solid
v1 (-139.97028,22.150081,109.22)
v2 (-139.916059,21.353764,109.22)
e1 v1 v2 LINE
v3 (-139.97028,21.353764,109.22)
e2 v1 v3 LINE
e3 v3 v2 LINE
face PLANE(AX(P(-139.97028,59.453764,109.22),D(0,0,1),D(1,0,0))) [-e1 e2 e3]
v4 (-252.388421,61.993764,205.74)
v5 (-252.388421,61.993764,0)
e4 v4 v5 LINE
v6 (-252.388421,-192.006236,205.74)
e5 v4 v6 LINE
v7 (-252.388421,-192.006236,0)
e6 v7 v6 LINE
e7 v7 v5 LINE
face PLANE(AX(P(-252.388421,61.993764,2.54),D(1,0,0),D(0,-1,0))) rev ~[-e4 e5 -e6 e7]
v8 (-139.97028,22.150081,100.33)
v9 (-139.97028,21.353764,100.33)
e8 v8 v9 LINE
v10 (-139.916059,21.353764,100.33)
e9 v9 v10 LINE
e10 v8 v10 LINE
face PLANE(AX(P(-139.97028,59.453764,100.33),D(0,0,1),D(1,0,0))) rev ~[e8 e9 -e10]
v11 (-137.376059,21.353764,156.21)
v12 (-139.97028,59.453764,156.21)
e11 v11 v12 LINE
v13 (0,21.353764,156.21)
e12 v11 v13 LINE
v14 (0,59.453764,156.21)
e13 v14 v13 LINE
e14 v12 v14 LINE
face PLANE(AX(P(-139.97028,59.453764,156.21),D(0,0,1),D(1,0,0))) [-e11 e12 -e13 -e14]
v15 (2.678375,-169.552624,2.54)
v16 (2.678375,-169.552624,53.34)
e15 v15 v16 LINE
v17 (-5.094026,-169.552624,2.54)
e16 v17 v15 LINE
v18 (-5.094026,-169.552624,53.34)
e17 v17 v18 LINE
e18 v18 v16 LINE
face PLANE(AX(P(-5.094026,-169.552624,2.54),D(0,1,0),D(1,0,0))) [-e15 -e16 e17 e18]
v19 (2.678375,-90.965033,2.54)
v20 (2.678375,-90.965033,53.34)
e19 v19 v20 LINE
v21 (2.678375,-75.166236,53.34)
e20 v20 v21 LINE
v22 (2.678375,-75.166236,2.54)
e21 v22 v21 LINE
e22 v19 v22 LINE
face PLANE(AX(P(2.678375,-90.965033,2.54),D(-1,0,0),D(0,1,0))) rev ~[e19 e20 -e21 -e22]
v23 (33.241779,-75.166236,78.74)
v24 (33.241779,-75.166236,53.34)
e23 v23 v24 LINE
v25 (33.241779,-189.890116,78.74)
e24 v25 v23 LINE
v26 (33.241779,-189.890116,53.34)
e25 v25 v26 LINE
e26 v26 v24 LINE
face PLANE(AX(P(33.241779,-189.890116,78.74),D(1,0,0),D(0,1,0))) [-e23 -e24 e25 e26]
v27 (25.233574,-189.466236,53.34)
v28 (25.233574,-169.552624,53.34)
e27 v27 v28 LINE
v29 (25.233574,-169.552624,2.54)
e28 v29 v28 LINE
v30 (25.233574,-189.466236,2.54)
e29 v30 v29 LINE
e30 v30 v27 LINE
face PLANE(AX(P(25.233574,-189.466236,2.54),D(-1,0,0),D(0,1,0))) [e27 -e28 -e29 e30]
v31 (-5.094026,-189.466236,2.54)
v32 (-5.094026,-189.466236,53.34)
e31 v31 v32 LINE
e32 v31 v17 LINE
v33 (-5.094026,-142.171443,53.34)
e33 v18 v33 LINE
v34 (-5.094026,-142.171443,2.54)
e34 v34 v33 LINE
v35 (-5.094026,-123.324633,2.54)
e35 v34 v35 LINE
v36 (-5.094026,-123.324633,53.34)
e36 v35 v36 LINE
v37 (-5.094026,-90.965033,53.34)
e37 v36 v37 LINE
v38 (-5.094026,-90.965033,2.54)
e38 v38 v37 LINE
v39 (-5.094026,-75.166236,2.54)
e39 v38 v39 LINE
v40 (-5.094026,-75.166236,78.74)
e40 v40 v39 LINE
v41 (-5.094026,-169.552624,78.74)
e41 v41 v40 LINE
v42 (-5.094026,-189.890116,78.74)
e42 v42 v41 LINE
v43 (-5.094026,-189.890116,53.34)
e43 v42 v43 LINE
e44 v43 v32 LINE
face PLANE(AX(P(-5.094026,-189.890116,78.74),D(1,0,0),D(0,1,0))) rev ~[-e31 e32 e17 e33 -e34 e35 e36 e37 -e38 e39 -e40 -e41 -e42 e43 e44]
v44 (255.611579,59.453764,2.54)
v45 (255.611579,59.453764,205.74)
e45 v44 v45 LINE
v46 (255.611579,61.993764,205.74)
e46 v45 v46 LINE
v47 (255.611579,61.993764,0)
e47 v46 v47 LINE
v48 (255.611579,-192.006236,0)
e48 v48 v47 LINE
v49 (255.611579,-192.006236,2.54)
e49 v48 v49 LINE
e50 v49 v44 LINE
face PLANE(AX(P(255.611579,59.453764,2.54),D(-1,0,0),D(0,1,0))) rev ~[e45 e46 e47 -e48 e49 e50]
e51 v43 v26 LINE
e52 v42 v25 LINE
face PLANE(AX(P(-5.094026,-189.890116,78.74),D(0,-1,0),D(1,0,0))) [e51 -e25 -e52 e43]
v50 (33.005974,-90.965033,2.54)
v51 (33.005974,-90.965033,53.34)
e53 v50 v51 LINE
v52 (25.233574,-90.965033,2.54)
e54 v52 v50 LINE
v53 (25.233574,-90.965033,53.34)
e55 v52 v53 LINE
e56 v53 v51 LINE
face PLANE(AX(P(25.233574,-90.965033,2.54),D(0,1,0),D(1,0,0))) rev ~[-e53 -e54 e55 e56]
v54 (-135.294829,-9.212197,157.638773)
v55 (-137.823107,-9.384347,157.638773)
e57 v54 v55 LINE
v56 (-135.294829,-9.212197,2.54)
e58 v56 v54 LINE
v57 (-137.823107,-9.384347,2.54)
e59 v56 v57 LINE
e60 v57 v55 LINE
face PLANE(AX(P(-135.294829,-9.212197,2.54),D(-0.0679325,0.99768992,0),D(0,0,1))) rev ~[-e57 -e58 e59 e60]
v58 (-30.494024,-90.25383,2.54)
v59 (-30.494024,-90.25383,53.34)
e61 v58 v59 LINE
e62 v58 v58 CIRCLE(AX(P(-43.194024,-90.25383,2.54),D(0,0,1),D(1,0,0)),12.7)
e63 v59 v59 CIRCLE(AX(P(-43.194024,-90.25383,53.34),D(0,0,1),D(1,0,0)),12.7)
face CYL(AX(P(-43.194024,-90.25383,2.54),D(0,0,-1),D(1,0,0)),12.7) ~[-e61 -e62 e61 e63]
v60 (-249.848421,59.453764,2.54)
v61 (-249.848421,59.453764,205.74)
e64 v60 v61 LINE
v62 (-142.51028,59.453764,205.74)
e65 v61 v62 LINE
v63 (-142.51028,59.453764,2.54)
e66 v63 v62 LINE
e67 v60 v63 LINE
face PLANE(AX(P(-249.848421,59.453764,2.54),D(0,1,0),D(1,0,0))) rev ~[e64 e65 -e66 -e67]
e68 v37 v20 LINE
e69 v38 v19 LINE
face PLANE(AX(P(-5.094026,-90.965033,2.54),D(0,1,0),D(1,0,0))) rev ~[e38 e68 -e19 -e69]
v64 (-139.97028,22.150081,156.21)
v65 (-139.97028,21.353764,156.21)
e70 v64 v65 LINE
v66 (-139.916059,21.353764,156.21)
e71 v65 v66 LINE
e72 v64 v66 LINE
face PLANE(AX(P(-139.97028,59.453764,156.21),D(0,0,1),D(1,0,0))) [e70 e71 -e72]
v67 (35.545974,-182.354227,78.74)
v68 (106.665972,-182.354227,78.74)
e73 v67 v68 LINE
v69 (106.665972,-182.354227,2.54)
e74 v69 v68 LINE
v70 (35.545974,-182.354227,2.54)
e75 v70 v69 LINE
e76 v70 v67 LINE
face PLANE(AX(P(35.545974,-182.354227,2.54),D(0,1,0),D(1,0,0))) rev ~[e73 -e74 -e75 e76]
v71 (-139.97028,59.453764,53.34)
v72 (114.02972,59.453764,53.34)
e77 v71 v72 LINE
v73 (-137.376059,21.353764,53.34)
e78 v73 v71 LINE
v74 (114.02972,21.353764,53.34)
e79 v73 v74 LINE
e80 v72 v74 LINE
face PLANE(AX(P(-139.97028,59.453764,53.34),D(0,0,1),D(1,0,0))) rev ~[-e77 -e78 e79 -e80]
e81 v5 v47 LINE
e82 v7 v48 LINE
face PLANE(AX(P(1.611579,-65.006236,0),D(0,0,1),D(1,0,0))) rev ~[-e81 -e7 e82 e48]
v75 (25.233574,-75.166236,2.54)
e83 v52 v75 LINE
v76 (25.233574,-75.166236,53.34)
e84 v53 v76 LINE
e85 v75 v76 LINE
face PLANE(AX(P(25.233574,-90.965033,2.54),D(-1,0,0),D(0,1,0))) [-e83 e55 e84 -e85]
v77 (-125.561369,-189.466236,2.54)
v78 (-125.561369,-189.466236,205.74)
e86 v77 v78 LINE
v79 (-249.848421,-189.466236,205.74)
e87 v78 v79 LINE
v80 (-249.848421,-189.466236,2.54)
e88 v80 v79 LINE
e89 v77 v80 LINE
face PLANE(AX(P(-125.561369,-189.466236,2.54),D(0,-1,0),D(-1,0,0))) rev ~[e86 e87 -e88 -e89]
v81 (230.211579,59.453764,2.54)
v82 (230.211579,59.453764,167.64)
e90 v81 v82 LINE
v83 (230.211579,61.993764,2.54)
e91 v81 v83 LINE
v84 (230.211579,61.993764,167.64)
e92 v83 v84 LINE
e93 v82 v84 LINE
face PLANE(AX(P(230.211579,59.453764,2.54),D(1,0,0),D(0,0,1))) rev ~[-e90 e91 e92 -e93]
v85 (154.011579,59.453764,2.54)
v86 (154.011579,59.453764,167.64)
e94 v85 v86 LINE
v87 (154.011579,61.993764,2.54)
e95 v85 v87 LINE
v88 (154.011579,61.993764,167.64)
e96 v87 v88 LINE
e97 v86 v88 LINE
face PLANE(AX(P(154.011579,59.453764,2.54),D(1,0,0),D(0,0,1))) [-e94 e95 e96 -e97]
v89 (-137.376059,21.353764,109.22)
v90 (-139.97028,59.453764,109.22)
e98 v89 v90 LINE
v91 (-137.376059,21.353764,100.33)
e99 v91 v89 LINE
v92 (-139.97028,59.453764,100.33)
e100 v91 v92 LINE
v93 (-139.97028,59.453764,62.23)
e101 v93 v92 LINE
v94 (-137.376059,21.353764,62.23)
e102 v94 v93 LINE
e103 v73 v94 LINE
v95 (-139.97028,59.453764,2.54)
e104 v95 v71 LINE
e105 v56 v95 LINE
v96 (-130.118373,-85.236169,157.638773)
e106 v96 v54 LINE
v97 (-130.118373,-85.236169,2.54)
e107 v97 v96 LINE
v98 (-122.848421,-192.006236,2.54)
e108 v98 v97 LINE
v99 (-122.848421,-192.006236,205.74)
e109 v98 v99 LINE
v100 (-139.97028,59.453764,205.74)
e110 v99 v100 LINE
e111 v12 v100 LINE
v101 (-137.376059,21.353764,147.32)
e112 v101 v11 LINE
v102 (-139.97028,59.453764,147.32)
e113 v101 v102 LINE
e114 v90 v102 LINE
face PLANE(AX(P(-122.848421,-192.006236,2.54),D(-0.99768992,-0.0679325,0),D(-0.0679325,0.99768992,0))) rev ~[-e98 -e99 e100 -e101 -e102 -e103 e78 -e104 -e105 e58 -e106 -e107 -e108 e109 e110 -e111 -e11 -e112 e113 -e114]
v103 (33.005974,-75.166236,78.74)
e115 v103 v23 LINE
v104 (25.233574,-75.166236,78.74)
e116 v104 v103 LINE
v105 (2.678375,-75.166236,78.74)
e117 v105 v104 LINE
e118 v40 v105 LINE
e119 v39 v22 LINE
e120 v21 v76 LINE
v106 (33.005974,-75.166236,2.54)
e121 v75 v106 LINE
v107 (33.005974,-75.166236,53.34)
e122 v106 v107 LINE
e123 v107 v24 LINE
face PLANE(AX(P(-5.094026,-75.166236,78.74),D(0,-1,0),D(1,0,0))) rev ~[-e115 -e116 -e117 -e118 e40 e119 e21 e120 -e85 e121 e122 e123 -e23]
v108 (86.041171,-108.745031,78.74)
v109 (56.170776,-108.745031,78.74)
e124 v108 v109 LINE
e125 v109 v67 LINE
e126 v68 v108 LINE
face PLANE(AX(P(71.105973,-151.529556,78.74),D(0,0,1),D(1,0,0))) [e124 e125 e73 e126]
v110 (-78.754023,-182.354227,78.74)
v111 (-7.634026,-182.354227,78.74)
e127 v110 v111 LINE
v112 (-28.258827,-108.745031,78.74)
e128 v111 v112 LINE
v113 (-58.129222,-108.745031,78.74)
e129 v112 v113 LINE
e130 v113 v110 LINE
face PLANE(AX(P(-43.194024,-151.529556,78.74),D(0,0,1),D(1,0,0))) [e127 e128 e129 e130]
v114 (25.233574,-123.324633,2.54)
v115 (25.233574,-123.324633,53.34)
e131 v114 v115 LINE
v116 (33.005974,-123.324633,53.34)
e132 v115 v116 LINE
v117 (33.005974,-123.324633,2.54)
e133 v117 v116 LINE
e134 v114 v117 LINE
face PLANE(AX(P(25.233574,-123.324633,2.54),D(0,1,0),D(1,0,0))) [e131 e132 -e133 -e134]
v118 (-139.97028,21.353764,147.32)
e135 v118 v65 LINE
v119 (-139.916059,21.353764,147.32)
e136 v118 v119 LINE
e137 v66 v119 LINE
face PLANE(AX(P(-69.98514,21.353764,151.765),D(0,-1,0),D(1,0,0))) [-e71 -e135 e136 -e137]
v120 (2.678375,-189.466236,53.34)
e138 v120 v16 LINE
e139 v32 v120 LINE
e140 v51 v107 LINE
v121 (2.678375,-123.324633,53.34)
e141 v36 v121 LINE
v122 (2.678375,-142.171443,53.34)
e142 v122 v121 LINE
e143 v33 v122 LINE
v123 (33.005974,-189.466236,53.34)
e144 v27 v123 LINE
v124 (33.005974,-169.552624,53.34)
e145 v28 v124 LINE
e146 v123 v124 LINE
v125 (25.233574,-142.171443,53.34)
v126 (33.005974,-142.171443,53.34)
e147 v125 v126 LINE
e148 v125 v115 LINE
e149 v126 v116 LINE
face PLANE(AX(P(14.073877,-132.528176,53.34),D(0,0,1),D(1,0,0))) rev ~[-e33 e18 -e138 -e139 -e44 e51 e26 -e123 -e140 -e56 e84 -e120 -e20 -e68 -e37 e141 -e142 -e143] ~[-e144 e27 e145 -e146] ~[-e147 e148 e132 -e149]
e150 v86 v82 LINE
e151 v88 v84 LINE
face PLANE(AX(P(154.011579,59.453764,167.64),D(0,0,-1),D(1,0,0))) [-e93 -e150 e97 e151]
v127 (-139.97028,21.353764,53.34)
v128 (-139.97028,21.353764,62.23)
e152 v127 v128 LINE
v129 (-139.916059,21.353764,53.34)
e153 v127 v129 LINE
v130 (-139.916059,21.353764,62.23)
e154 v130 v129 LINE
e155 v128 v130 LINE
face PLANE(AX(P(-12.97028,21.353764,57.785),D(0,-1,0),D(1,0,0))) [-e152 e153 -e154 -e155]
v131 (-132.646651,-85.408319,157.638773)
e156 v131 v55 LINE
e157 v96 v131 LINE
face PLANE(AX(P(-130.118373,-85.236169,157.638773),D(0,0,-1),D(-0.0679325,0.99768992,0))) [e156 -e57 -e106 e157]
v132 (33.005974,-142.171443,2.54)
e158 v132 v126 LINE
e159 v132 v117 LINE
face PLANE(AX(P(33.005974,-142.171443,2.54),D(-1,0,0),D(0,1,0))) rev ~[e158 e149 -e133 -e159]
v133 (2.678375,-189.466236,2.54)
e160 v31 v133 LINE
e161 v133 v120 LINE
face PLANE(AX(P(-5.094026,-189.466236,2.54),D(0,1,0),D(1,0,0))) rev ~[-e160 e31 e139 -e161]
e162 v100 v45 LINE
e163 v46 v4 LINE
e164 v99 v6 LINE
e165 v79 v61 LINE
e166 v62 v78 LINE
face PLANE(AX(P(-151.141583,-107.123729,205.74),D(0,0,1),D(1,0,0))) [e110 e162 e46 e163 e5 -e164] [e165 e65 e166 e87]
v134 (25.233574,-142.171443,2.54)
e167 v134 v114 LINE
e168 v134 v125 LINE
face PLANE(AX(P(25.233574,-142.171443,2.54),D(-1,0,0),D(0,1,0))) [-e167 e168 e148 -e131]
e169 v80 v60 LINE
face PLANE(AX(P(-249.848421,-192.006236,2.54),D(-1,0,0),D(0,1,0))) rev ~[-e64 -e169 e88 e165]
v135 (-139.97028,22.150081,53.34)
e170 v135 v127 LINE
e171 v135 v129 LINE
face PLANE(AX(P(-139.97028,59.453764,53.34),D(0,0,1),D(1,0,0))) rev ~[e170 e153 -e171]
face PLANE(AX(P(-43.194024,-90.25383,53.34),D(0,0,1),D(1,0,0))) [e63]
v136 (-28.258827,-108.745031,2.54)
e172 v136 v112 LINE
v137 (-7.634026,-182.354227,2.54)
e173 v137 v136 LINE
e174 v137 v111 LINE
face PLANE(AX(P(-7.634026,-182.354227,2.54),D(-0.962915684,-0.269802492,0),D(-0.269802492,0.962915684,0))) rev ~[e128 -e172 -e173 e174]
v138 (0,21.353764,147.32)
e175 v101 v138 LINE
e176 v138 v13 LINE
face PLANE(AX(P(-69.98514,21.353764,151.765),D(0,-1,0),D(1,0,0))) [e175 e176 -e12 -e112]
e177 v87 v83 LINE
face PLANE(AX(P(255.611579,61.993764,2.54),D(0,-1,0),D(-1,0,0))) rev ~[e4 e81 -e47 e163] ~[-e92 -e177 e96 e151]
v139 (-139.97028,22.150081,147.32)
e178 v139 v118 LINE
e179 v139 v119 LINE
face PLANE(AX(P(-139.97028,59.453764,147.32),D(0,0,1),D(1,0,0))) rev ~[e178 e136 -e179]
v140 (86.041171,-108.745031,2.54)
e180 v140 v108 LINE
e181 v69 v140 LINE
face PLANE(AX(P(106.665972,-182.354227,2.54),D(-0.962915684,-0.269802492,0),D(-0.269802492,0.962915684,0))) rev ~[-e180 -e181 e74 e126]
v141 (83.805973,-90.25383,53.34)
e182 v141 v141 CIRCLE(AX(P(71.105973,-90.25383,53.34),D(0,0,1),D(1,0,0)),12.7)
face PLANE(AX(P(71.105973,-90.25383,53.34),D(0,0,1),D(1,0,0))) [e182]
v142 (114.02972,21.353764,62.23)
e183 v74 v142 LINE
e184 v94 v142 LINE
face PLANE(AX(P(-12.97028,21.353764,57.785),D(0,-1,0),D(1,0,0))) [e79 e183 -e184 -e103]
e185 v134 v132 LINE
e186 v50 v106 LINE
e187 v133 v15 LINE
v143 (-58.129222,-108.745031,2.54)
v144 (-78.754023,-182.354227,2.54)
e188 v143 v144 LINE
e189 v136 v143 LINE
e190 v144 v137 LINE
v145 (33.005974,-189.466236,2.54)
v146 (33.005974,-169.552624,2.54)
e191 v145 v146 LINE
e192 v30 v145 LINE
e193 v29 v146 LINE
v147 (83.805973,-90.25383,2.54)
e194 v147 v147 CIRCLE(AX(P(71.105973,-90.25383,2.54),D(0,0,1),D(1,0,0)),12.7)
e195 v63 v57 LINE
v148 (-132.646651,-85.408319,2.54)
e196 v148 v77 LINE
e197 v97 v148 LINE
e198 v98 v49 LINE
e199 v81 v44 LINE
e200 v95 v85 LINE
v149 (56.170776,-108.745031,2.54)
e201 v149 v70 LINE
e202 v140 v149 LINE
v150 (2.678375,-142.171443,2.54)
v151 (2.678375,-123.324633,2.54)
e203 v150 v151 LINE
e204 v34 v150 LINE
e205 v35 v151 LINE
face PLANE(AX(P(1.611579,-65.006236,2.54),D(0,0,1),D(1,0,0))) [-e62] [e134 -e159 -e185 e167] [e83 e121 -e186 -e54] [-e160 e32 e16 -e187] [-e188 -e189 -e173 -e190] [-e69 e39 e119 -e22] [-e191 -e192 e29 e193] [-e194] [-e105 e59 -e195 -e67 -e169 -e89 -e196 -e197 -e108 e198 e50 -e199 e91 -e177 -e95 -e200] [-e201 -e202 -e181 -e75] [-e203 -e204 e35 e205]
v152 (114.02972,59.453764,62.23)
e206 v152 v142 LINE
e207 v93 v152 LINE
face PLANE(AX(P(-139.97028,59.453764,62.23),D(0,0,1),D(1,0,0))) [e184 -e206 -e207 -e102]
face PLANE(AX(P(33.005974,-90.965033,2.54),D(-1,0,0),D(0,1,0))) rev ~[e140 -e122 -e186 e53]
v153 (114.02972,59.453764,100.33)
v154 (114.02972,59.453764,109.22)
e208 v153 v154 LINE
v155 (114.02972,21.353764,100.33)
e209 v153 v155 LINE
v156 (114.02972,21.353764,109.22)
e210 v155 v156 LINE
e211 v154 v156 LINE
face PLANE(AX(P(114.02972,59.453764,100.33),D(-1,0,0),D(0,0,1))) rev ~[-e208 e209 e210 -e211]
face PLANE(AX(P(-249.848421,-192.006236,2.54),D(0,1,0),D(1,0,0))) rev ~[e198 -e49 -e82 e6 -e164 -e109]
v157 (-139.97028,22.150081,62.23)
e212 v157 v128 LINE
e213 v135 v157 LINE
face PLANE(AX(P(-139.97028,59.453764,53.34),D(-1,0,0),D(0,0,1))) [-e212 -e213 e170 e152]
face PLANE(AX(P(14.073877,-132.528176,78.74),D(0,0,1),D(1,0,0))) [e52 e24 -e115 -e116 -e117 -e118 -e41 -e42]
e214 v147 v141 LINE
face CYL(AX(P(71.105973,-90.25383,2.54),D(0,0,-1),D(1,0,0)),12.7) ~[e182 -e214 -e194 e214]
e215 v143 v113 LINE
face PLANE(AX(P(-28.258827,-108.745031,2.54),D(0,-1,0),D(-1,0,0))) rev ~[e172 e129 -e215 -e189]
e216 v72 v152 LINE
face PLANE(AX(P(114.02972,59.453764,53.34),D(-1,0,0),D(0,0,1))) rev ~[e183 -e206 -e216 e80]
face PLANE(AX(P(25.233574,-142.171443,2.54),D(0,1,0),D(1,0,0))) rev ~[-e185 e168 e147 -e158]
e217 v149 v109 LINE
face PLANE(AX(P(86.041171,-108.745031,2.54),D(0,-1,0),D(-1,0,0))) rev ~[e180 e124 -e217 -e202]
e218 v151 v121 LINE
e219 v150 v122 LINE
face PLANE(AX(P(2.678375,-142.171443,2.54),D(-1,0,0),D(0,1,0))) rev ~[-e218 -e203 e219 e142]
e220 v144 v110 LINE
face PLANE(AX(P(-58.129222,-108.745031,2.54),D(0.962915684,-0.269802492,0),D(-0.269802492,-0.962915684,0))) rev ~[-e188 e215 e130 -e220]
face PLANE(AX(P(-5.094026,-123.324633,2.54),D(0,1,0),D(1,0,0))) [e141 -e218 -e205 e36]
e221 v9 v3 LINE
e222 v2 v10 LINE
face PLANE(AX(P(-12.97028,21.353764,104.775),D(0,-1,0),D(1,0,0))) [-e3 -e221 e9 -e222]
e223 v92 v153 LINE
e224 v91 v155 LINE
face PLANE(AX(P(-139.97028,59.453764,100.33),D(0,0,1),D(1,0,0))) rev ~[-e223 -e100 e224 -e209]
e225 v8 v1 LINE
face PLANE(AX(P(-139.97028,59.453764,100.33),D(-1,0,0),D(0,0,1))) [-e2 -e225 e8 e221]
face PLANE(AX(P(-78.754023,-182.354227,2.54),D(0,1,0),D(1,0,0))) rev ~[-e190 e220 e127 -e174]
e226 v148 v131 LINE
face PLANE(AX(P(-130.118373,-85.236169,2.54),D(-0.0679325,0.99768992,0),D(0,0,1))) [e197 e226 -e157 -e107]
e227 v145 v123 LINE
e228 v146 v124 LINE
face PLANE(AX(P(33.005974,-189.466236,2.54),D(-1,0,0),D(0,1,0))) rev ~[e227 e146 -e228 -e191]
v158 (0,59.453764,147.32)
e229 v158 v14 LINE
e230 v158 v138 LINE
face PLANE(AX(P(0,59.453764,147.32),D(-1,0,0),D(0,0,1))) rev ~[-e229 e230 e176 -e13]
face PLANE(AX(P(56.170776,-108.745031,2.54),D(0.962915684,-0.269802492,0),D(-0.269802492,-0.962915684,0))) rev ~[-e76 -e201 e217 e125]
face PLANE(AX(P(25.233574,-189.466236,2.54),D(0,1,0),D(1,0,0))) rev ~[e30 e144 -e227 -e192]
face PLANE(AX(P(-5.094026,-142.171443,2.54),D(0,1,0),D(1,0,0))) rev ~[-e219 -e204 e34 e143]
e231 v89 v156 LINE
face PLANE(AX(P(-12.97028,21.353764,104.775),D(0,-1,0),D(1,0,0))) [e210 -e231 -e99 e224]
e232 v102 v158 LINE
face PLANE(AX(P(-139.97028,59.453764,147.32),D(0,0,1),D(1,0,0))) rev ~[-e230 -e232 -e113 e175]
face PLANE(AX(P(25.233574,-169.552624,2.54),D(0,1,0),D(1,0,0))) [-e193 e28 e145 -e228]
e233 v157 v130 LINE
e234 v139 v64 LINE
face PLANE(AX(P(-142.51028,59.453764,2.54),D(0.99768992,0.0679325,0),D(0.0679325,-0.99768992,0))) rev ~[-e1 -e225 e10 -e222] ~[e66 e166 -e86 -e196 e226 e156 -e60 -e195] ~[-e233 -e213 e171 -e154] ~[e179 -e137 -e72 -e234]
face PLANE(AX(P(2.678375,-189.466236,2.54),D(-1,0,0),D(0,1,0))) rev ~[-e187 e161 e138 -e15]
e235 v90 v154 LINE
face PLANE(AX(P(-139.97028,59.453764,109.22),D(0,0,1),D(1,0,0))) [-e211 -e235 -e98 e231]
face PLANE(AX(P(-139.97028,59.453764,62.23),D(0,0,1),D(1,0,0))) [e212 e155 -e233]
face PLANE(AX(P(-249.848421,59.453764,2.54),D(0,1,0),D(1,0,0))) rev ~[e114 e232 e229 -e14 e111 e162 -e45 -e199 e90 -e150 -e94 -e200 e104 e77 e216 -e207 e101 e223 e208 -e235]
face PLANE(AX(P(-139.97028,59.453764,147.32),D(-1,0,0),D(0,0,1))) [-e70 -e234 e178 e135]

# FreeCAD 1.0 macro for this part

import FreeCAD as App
import Part
import Sketcher
from FreeCAD import Vector
Q = App.Units.Quantity

doc = App.newDocument("Part")
body = doc.addObject("PartDesign::Body", "Body")

# Sketch on XY plane
sketch1 = body.newObject("Sketcher::SketchObject", "Sketch")
sketch1.AttachmentSupport = (doc.getObject("XY_Plane"), [""])
sketch1.MapMode = "FlatFace"
sketch1.addGeometry(Part.LineSegment(Vector(-252, 62, 0), Vector(-252, -192, 0)), False)
sketch1.addGeometry(Part.LineSegment(Vector(-252, -192, 0), Vector(256, -192, 0)), False)
sketch1.addGeometry(Part.LineSegment(Vector(256, -192, 0), Vector(256, 62, 0)), False)
sketch1.addGeometry(Part.LineSegment(Vector(256, 62, 0), Vector(-252, 62, 0)), False)
sketch1.addConstraint(Sketcher.Constraint("Coincident", 0, 2, 1, 1))
sketch1.addConstraint(Sketcher.Constraint("Coincident", 1, 2, 2, 1))
sketch1.addConstraint(Sketcher.Constraint("Coincident", 2, 2, 3, 1))
sketch1.addConstraint(Sketcher.Constraint("Coincident", 3, 2, 0, 1))
sketch1.addConstraint(Sketcher.Constraint("Vertical", 0))
sketch1.addConstraint(Sketcher.Constraint("Horizontal", 1))
sketch1.addConstraint(Sketcher.Constraint("Vertical", 2))
sketch1.addConstraint(Sketcher.Constraint("Horizontal", 3))
sketch1.addConstraint(Sketcher.Constraint("DistanceX", 1, 1, 1, 2, Q("20 in")))
sketch1.addConstraint(Sketcher.Constraint("DistanceY", 0, 2, 0, 1, Q("10 in")))
sketch1.addConstraint(Sketcher.Constraint("DistanceX", 0, 2, -1, 1, 252.388421))
sketch1.addConstraint(Sketcher.Constraint("DistanceY", 0, 2, -1, 1, 192.006236))
pad1 = body.newObject("PartDesign::Pad", "Pad")
pad1.Profile = sketch1
pad1.Length = Q("0.1 in")

# Sketch on XY plane
sketch2 = body.newObject("Sketcher::SketchObject", "Sketch001")
sketch2.AttachmentSupport = (doc.getObject("XY_Plane"), [""])
sketch2.MapMode = "FlatFace"
sketch2.AttachmentOffset = App.Placement(Vector(0, 0, 0.1 * 25.4), App.Rotation())
sketch2.addGeometry(Part.LineSegment(Vector(-252.4, 62, 0), Vector(-252.4, -192, 0)), False)
sketch2.addGeometry(Part.LineSegment(Vector(-252.4, -192, 0), Vector(-249.8, -192, 0)), False)
sketch2.addGeometry(Part.LineSegment(Vector(-249.8, -192, 0), Vector(-249.8, 59.5, 0)), False)
sketch2.addGeometry(Part.LineSegment(Vector(-249.8, 59.5, 0), Vector(255.6, 59.5, 0)), False)
sketch2.addGeometry(Part.LineSegment(Vector(255.6, 59.5, 0), Vector(255.6, 62, 0)), False)
sketch2.addGeometry(Part.LineSegment(Vector(255.6, 62, 0), Vector(-252.4, 62, 0)), False)
sketch2.addConstraint(Sketcher.Constraint("Coincident", 0, 2, 1, 1))
sketch2.addConstraint(Sketcher.Constraint("Coincident", 1, 2, 2, 1))
sketch2.addConstraint(Sketcher.Constraint("Coincident", 2, 2, 3, 1))
sketch2.addConstraint(Sketcher.Constraint("Coincident", 3, 2, 4, 1))
sketch2.addConstraint(Sketcher.Constraint("Coincident", 4, 2, 5, 1))
sketch2.addConstraint(Sketcher.Constraint("Coincident", 5, 2, 0, 1))
sketch2.addConstraint(Sketcher.Constraint("Vertical", 0))
sketch2.addConstraint(Sketcher.Constraint("Horizontal", 1))
sketch2.addConstraint(Sketcher.Constraint("Vertical", 2))
sketch2.addConstraint(Sketcher.Constraint("Horizontal", 3))
sketch2.addConstraint(Sketcher.Constraint("Vertical", 4))
sketch2.addConstraint(Sketcher.Constraint("Horizontal", 5))
sketch2.addConstraint(Sketcher.Constraint("Equal", 1, 4))
sketch2.addConstraint(Sketcher.Constraint("DistanceX", 5, 2, 5, 1, Q("20 in")))
sketch2.addConstraint(Sketcher.Constraint("DistanceY", 0, 2, 0, 1, Q("10 in")))
sketch2.addConstraint(Sketcher.Constraint("DistanceX", 1, 1, 1, 2, Q("0.1 in")))
sketch2.addConstraint(Sketcher.Constraint("DistanceX", 0, 2, -1, 1, 252.388421))
sketch2.addConstraint(Sketcher.Constraint("DistanceY", 0, 2, -1, 1, 192.006236))
pad2 = body.newObject("PartDesign::Pad", "Pad001")
pad2.Profile = sketch2
pad2.Length = Q("8 in")

# Sketch on XY plane
sketch3 = body.newObject("Sketcher::SketchObject", "Sketch002")
sketch3.AttachmentSupport = (doc.getObject("XY_Plane"), [""])
sketch3.MapMode = "FlatFace"
sketch3.AttachmentOffset = App.Placement(Vector(0, 0, 0.1 * 25.4), App.Rotation())
sketch3.addGeometry(Part.LineSegment(Vector(-249.8, -189.5, 0), Vector(-249.8, -192, 0)), False)
sketch3.addGeometry(Part.LineSegment(Vector(-249.8, -192, 0), Vector(-122.8, -192, 0)), False)
sketch3.addGeometry(Part.LineSegment(Vector(-122.8, -192, 0), Vector(-140, 59.5, 0)), False)
sketch3.addGeometry(Part.LineSegment(Vector(-140, 59.5, 0), Vector(-142.5, 59.5, 0)), False)
sketch3.addGeometry(Part.LineSegment(Vector(-142.5, 59.5, 0), Vector(-125.6, -189.5, 0)), False)
sketch3.addGeometry(Part.LineSegment(Vector(-125.6, -189.5, 0), Vector(-249.8, -189.5, 0)), False)
sketch3.addConstraint(Sketcher.Constraint("Coincident", 0, 2, 1, 1))
sketch3.addConstraint(Sketcher.Constraint("Coincident", 1, 2, 2, 1))
sketch3.addConstraint(Sketcher.Constraint("Coincident", 2, 2, 3, 1))
sketch3.addConstraint(Sketcher.Constraint("Coincident", 3, 2, 4, 1))
sketch3.addConstraint(Sketcher.Constraint("Coincident", 4, 2, 5, 1))
sketch3.addConstraint(Sketcher.Constraint("Coincident", 5, 2, 0, 1))
sketch3.addConstraint(Sketcher.Constraint("Vertical", 0))
sketch3.addConstraint(Sketcher.Constraint("Horizontal", 1))
sketch3.addConstraint(Sketcher.Constraint("Horizontal", 3))
sketch3.addConstraint(Sketcher.Constraint("Horizontal", 5))
sketch3.addConstraint(Sketcher.Constraint("Parallel", 2, 4))
sketch3.addConstraint(Sketcher.Constraint("Equal", 3, 0))
sketch3.addConstraint(Sketcher.Constraint("DistanceX", 1, 1, 1, 2, Q("5 in")))
sketch3.addConstraint(Sketcher.Constraint("DistanceX", 3, 2, 3, 1, Q("0.1 in")))
sketch3.addConstraint(Sketcher.Constraint("DistanceY", 1, 2, 2, 2, Q("9.9 in")))
sketch3.addConstraint(Sketcher.Constraint("DistanceX", 5, 2, 5, 1, 124.287052))
sketch3.addConstraint(Sketcher.Constraint("DistanceX", 0, 2, -1, 1, 249.848421))
sketch3.addConstraint(Sketcher.Constraint("DistanceY", 0, 2, -1, 1, 192.006236))
pad3 = body.newObject("PartDesign::Pad", "Pad002")
pad3.Profile = sketch3
pad3.Length = Q("8 in")

# Sketch on an angled plane
sketch4 = body.newObject("Sketcher::SketchObject", "Sketch003")
sketch4.Placement = App.Placement(Vector(-135.294829, -9.212197, 0), App.Rotation(Vector(-0.0679325, 0.99768992, 0), Vector(0, 0, 1.000000001), Vector(0.99768992, 0.0679325, 0), "ZXY"))
sketch4.addGeometry(Part.LineSegment(Vector(-76, 158, 0), Vector(-76, 3, 0)), False)
sketch4.addGeometry(Part.LineSegment(Vector(-76, 3, 0), Vector(0, 3, 0)), False)
sketch4.addGeometry(Part.LineSegment(Vector(0, 3, 0), Vector(0, 158, 0)), False)
sketch4.addGeometry(Part.LineSegment(Vector(0, 158, 0), Vector(-76, 158, 0)), False)
sketch4.addConstraint(Sketcher.Constraint("Coincident", 0, 2, 1, 1))
sketch4.addConstraint(Sketcher.Constraint("Coincident", 1, 2, 2, 1))
sketch4.addConstraint(Sketcher.Constraint("Coincident", 2, 2, 3, 1))
sketch4.addConstraint(Sketcher.Constraint("Coincident", 3, 2, 0, 1))
sketch4.addConstraint(Sketcher.Constraint("Vertical", 0))
sketch4.addConstraint(Sketcher.Constraint("Horizontal", 1))
sketch4.addConstraint(Sketcher.Constraint("Vertical", 2))
sketch4.addConstraint(Sketcher.Constraint("Horizontal", 3))
sketch4.addConstraint(Sketcher.Constraint("PointOnObject", 1, 2, -2))
sketch4.addConstraint(Sketcher.Constraint("DistanceX", 1, 1, 1, 2, Q("3 in")))
sketch4.addConstraint(Sketcher.Constraint("DistanceY", -1, 1, 0, 2, Q("0.1 in")))
sketch4.addConstraint(Sketcher.Constraint("DistanceY", 0, 2, 0, 1, 155.098774))
pocket1 = body.newObject("PartDesign::Pocket", "Pocket")
pocket1.Profile = sketch4
pocket1.Length = Q("1 in")

# Sketch on XY plane
sketch5 = body.newObject("Sketcher::SketchObject", "Sketch004")
sketch5.AttachmentSupport = (doc.getObject("XY_Plane"), [""])
sketch5.MapMode = "FlatFace"
sketch5.AttachmentOffset = App.Placement(Vector(0, 0, 0.1 * 25.4), App.Rotation())
sketch5.addGeometry(Part.LineSegment(Vector(-79, -182, 0), Vector(-8, -182, 0)), False)
sketch5.addGeometry(Part.LineSegment(Vector(-8, -182, 0), Vector(-28, -109, 0)), False)
sketch5.addGeometry(Part.LineSegment(Vector(-28, -109, 0), Vector(-58, -109, 0)), False)
sketch5.addGeometry(Part.LineSegment(Vector(-58, -109, 0), Vector(-79, -182, 0)), False)
sketch5.addConstraint(Sketcher.Constraint("Coincident", 0, 2, 1, 1))
sketch5.addConstraint(Sketcher.Constraint("Coincident", 1, 2, 2, 1))
sketch5.addConstraint(Sketcher.Constraint("Coincident", 2, 2, 3, 1))
sketch5.addConstraint(Sketcher.Constraint("Coincident", 3, 2, 0, 1))
sketch5.addConstraint(Sketcher.Constraint("Horizontal", 0))
sketch5.addConstraint(Sketcher.Constraint("Horizontal", 2))
sketch5.addConstraint(Sketcher.Constraint("Equal", 1, 3))
sketch5.addConstraint(Sketcher.Constraint("DistanceX", 0, 1, 0, 2, Q("2.7999999 in")))
sketch5.addConstraint(Sketcher.Constraint("DistanceX", 2, 2, 2, 1, Q("1.1759998 in")))
sketch5.addConstraint(Sketcher.Constraint("DistanceY", 0, 2, 1, 2, Q("2.8979998 in")))
sketch5.addConstraint(Sketcher.Constraint("DistanceY", 1, 2, -1, 1, 108.745031))
sketch5.addConstraint(Sketcher.Constraint("DistanceX", 2, 2, -1, 1, 58.129222))
pad4 = body.newObject("PartDesign::Pad", "Pad003")
pad4.Profile = sketch5
pad4.Length = Q("3 in")

# Sketch on XY plane
sketch6 = body.newObject("Sketcher::SketchObject", "Sketch005")
sketch6.AttachmentSupport = (doc.getObject("XY_Plane"), [""])
sketch6.MapMode = "FlatFace"
sketch6.AttachmentOffset = App.Placement(Vector(0, 0, 0.1 * 25.4), App.Rotation())
sketch6.addGeometry(Part.LineSegment(Vector(-5, -75, 0), Vector(-5, -91, 0)), False)
sketch6.addGeometry(Part.LineSegment(Vector(-5, -91, 0), Vector(3, -91, 0)), False)
sketch6.addGeometry(Part.LineSegment(Vector(3, -91, 0), Vector(3, -75, 0)), False)
sketch6.addGeometry(Part.LineSegment(Vector(3, -75, 0), Vector(-5, -75, 0)), False)
sketch6.addGeometry(Part.LineSegment(Vector(-5, -123, 0), Vector(-5, -142, 0)), False)
sketch6.addGeometry(Part.LineSegment(Vector(-5, -142, 0), Vector(3, -142, 0)), False)
sketch6.addGeometry(Part.LineSegment(Vector(3, -142, 0), Vector(3, -123, 0)), False)
sketch6.addGeometry(Part.LineSegment(Vector(3, -123, 0), Vector(-5, -123, 0)), False)
sketch6.addGeometry(Part.LineSegment(Vector(-5, -170, 0), Vector(-5, -189, 0)), False)
sketch6.addGeometry(Part.LineSegment(Vector(-5, -189, 0), Vector(3, -189, 0)), False)
sketch6.addGeometry(Part.LineSegment(Vector(3, -189, 0), Vector(3, -170, 0)), False)
sketch6.addGeometry(Part.LineSegment(Vector(3, -170, 0), Vector(-5, -170, 0)), False)
sketch6.addGeometry(Part.LineSegment(Vector(25, -75, 0), Vector(25, -91, 0)), False)
sketch6.addGeometry(Part.LineSegment(Vector(25, -91, 0), Vector(33, -91, 0)), False)
sketch6.addGeometry(Part.LineSegment(Vector(33, -91, 0), Vector(33, -75, 0)), False)
sketch6.addGeometry(Part.LineSegment(Vector(33, -75, 0), Vector(25, -75, 0)), False)
sketch6.addGeometry(Part.LineSegment(Vector(25, -123, 0), Vector(25, -142, 0)), False)
sketch6.addGeometry(Part.LineSegment(Vector(25, -142, 0), Vector(33, -142, 0)), False)
sketch6.addGeometry(Part.LineSegment(Vector(33, -142, 0), Vector(33, -123, 0)), False)
sketch6.addGeometry(Part.LineSegment(Vector(33, -123, 0), Vector(25, -123, 0)), False)
sketch6.addGeometry(Part.LineSegment(Vector(25, -170, 0), Vector(25, -189, 0)), False)
sketch6.addGeometry(Part.LineSegment(Vector(25, -189, 0), Vector(33, -189, 0)), False)
sketch6.addGeometry(Part.LineSegment(Vector(33, -189, 0), Vector(33, -170, 0)), False)
sketch6.addGeometry(Part.LineSegment(Vector(33, -170, 0), Vector(25, -170, 0)), False)
sketch6.addGeometry(Part.LineSegment(Vector(86, -109, 0), Vector(56, -109, 0)), False)
sketch6.addGeometry(Part.LineSegment(Vector(56, -109, 0), Vector(36, -182, 0)), False)
sketch6.addGeometry(Part.LineSegment(Vector(36, -182, 0), Vector(107, -182, 0)), False)
sketch6.addGeometry(Part.LineSegment(Vector(107, -182, 0), Vector(86, -109, 0)), False)
sketch6.addConstraint(Sketcher.Constraint("Coincident", 0, 2, 1, 1))
sketch6.addConstraint(Sketcher.Constraint("Coincident", 1, 2, 2, 1))
sketch6.addConstraint(Sketcher.Constraint("Coincident", 2, 2, 3, 1))
sketch6.addConstraint(Sketcher.Constraint("Coincident", 3, 2, 0, 1))
sketch6.addConstraint(Sketcher.Constraint("Coincident", 4, 2, 5, 1))
sketch6.addConstraint(Sketcher.Constraint("Coincident", 5, 2, 6, 1))
sketch6.addConstraint(Sketcher.Constraint("Coincident", 6, 2, 7, 1))
sketch6.addConstraint(Sketcher.Constraint("Coincident", 7, 2, 4, 1))
sketch6.addConstraint(Sketcher.Constraint("Coincident", 8, 2, 9, 1))
sketch6.addConstraint(Sketcher.Constraint("Coincident", 9, 2, 10, 1))
sketch6.addConstraint(Sketcher.Constraint("Coincident", 10, 2, 11, 1))
sketch6.addConstraint(Sketcher.Constraint("Coincident", 11, 2, 8, 1))
sketch6.addConstraint(Sketcher.Constraint("Coincident", 12, 2, 13, 1))
sketch6.addConstraint(Sketcher.Constraint("Coincident", 13, 2, 14, 1))
sketch6.addConstraint(Sketcher.Constraint("Coincident", 14, 2, 15, 1))
sketch6.addConstraint(Sketcher.Constraint("Coincident", 15, 2, 12, 1))
sketch6.addConstraint(Sketcher.Constraint("Coincident", 16, 2, 17, 1))
sketch6.addConstraint(Sketcher.Constraint("Coincident", 17, 2, 18, 1))
sketch6.addConstraint(Sketcher.Constraint("Coincident", 18, 2, 19, 1))
sketch6.addConstraint(Sketcher.Constraint("Coincident", 19, 2, 16, 1))
sketch6.addConstraint(Sketcher.Constraint("Coincident", 20, 2, 21, 1))
sketch6.addConstraint(Sketcher.Constraint("Coincident", 21, 2, 22, 1))
sketch6.addConstraint(Sketcher.Constraint("Coincident", 22, 2, 23, 1))
sketch6.addConstraint(Sketcher.Constraint("Coincident", 23, 2, 20, 1))
sketch6.addConstraint(Sketcher.Constraint("Coincident", 24, 2, 25, 1))
sketch6.addConstraint(Sketcher.Constraint("Coincident", 25, 2, 26, 1))
sketch6.addConstraint(Sketcher.Constraint("Coincident", 26, 2, 27, 1))
sketch6.addConstraint(Sketcher.Constraint("Coincident", 27, 2, 24, 1))
sketch6.addConstraint(Sketcher.Constraint("Vertical", 0))
sketch6.addConstraint(Sketcher.Constraint("Horizontal", 1))
sketch6.addConstraint(Sketcher.Constraint("Vertical", 2))
sketch6.addConstraint(Sketcher.Constraint("Horizontal", 3))
sketch6.addConstraint(Sketcher.Constraint("Vertical", 4))
sketch6.addConstraint(Sketcher.Constraint("Horizontal", 5))
sketch6.addConstraint(Sketcher.Constraint("Vertical", 6))
sketch6.addConstraint(Sketcher.Constraint("Horizontal", 7))
sketch6.addConstraint(Sketcher.Constraint("Vertical", 8))
sketch6.addConstraint(Sketcher.Constraint("Horizontal", 9))
sketch6.addConstraint(Sketcher.Constraint("Vertical", 10))
sketch6.addConstraint(Sketcher.Constraint("Horizontal", 11))
sketch6.addConstraint(Sketcher.Constraint("Vertical", 12))
sketch6.addConstraint(Sketcher.Constraint("Horizontal", 13))
sketch6.addConstraint(Sketcher.Constraint("Vertical", 14))
sketch6.addConstraint(Sketcher.Constraint("Horizontal", 15))
sketch6.addConstraint(Sketcher.Constraint("Vertical", 16))
sketch6.addConstraint(Sketcher.Constraint("Horizontal", 17))
sketch6.addConstraint(Sketcher.Constraint("Vertical", 18))
sketch6.addConstraint(Sketcher.Constraint("Horizontal", 19))
sketch6.addConstraint(Sketcher.Constraint("Vertical", 20))
sketch6.addConstraint(Sketcher.Constraint("Horizontal", 21))
sketch6.addConstraint(Sketcher.Constraint("Vertical", 22))
sketch6.addConstraint(Sketcher.Constraint("Horizontal", 23))
sketch6.addConstraint(Sketcher.Constraint("Horizontal", 24))
sketch6.addConstraint(Sketcher.Constraint("Horizontal", 26))
sketch6.addConstraint(Sketcher.Constraint("Horizontal", 1, 2, 12, 2))
sketch6.addConstraint(Sketcher.Constraint("Horizontal", 3, 2, 14, 2))
sketch6.addConstraint(Sketcher.Constraint("Horizontal", 5, 2, 16, 2))
sketch6.addConstraint(Sketcher.Constraint("Horizontal", 7, 2, 18, 2))
sketch6.addConstraint(Sketcher.Constraint("Horizontal", 9, 2, 20, 2))
sketch6.addConstraint(Sketcher.Constraint("Horizontal", 11, 2, 22, 2))
sketch6.addConstraint(Sketcher.Constraint("Vertical", 3, 2, 4, 2))
sketch6.addConstraint(Sketcher.Constraint("Vertical", 2, 2, 5, 2))
sketch6.addConstraint(Sketcher.Constraint("Vertical", 7, 2, 8, 2))
sketch6.addConstraint(Sketcher.Constraint("Vertical", 6, 2, 9, 2))
sketch6.addConstraint(Sketcher.Constraint("Vertical", 15, 2, 16, 2))
sketch6.addConstraint(Sketcher.Constraint("Vertical", 14, 2, 17, 2))
sketch6.addConstraint(Sketcher.Constraint("Vertical", 19, 2, 20, 2))
sketch6.addConstraint(Sketcher.Constraint("Vertical", 18, 2, 21, 2))
sketch6.addConstraint(Sketcher.Constraint("Equal", 11, 13))
sketch6.addConstraint(Sketcher.Constraint("Equal", 25, 27))
sketch6.addConstraint(Sketcher.Constraint("DistanceX", 26, 1, 26, 2, Q("2.7999999 in")))
sketch6.addConstraint(Sketcher.Constraint("DistanceX", 0, 2, 13, 2, Q("1.5 in")))
sketch6.addConstraint(Sketcher.Constraint("DistanceY", 24, 2, 13, 2, Q("0.6999999 in")))
sketch6.addConstraint(Sketcher.Constraint("DistanceX", 21, 2, 25, 2, Q("0.1 in")))
sketch6.addConstraint(Sketcher.Constraint("DistanceX", 1, 1, 1, 2, Q("0.306 in")))
sketch6.addConstraint(Sketcher.Constraint("DistanceX", 24, 2, 24, 1, Q("1.1759998 in")))
sketch6.addConstraint(Sketcher.Constraint("DistanceY", 0, 2, 0, 1, Q("0.6219999 in")))
sketch6.addConstraint(Sketcher.Constraint("DistanceY", 6, 2, 1, 2, Q("1.274 in")))
sketch6.addConstraint(Sketcher.Constraint("DistanceY", 8, 2, 7, 2, Q("2.6040001 in")))
sketch6.addConstraint(Sketcher.Constraint("DistanceY", 25, 2, 22, 2, Q("0.5040001 in")))
sketch6.addConstraint(Sketcher.Constraint("DistanceY", 10, 2, -1, 1, Q("6.6753002 in")))
sketch6.addConstraint(Sketcher.Constraint("DistanceY", 4, 2, 4, 1, 18.84681))
sketch6.addConstraint(Sketcher.Constraint("DistanceY", 8, 2, 8, 1, 19.913612))
sketch6.addConstraint(Sketcher.Constraint("DistanceX", -1, 1, 26, 2, 106.665972))
pad5 = body.newObject("PartDesign::Pad", "Pad004")
pad5.Profile = sketch6
pad5.Length = Q("3 in")

# Sketch on XY plane
sketch7 = body.newObject("Sketcher::SketchObject", "Sketch006")
sketch7.AttachmentSupport = (doc.getObject("XY_Plane"), [""])
sketch7.MapMode = "FlatFace"
sketch7.AttachmentOffset = App.Placement(Vector(0, 0, 3.1 * 25.4), App.Rotation())
sketch7.addGeometry(Part.LineSegment(Vector(-5, -75, 0), Vector(-5, -190, 0)), False)
sketch7.addGeometry(Part.LineSegment(Vector(-5, -190, 0), Vector(33, -190, 0)), False)
sketch7.addGeometry(Part.LineSegment(Vector(33, -190, 0), Vector(33, -75, 0)), False)
sketch7.addGeometry(Part.LineSegment(Vector(33, -75, 0), Vector(-5, -75, 0)), False)
sketch7.addConstraint(Sketcher.Constraint("Coincident", 0, 2, 1, 1))
sketch7.addConstraint(Sketcher.Constraint("Coincident", 1, 2, 2, 1))
sketch7.addConstraint(Sketcher.Constraint("Coincident", 2, 2, 3, 1))
sketch7.addConstraint(Sketcher.Constraint("Coincident", 3, 2, 0, 1))
sketch7.addConstraint(Sketcher.Constraint("Vertical", 0))
sketch7.addConstraint(Sketcher.Constraint("Horizontal", 1))
sketch7.addConstraint(Sketcher.Constraint("Vertical", 2))
sketch7.addConstraint(Sketcher.Constraint("Horizontal", 3))
sketch7.addConstraint(Sketcher.Constraint("DistanceY", 0, 2, 0, 1, 114.72388))
sketch7.addConstraint(Sketcher.Constraint("DistanceX", 1, 1, 1, 2, 38.335804))
sketch7.addConstraint(Sketcher.Constraint("DistanceX", -1, 1, 1, 2, 33.241779))
sketch7.addConstraint(Sketcher.Constraint("DistanceY", 0, 2, -1, 1, 189.890116))
pad6 = body.newObject("PartDesign::Pad", "Pad005")
pad6.Profile = sketch7
pad6.Length = Q("1 in")
pad6.Reversed = True

# Sketch on XY plane
sketch8 = body.newObject("Sketcher::SketchObject", "Sketch007")
sketch8.AttachmentSupport = (doc.getObject("XY_Plane"), [""])
sketch8.MapMode = "FlatFace"
sketch8.AttachmentOffset = App.Placement(Vector(0, 0, 0.1 * 25.4), App.Rotation())
sketch8.addGeometry(Part.Circle(Vector(-43, -90, 0), Vector(0, 0, 1), 13), False)
sketch8.addGeometry(Part.Circle(Vector(71, -90, 0), Vector(0, 0, 1), 13), False)
sketch8.addConstraint(Sketcher.Constraint("Equal", 0, 1))
sketch8.addConstraint(Sketcher.Constraint("Horizontal", 0, 3, 1, 3))
sketch8.addConstraint(Sketcher.Constraint("Diameter", 0, Q("1 in")))
sketch8.addConstraint(Sketcher.Constraint("DistanceX", 0, 3, 1, 3, Q("4.4999999 in")))
sketch8.addConstraint(Sketcher.Constraint("DistanceY", 0, 3, -1, 1, 90.25383))
sketch8.addConstraint(Sketcher.Constraint("DistanceX", 0, 3, -1, 1, 43.194024))
pad7 = body.newObject("PartDesign::Pad", "Pad006")
pad7.Profile = sketch8
pad7.Length = Q("2 in")

# Sketch on XZ plane
sketch9 = body.newObject("Sketcher::SketchObject", "Sketch008")
sketch9.AttachmentSupport = (doc.getObject("XZ_Plane"), [""])
sketch9.MapMode = "FlatFace"
sketch9.AttachmentOffset = App.Placement(Vector(0, 0, -59.453764), App.Rotation())
sketch9.addGeometry(Part.LineSegment(Vector(154, 168, 0), Vector(154, 3, 0)), False)
sketch9.addGeometry(Part.LineSegment(Vector(154, 3, 0), Vector(230, 3, 0)), False)
sketch9.addGeometry(Part.LineSegment(Vector(230, 3, 0), Vector(230, 168, 0)), False)
sketch9.addGeometry(Part.LineSegment(Vector(230, 168, 0), Vector(154, 168, 0)), False)
sketch9.addConstraint(Sketcher.Constraint("Coincident", 0, 2, 1, 1))
sketch9.addConstraint(Sketcher.Constraint("Coincident", 1, 2, 2, 1))
sketch9.addConstraint(Sketcher.Constraint("Coincident", 2, 2, 3, 1))
sketch9.addConstraint(Sketcher.Constraint("Coincident", 3, 2, 0, 1))
sketch9.addConstraint(Sketcher.Constraint("Vertical", 0))
sketch9.addConstraint(Sketcher.Constraint("Horizontal", 1))
sketch9.addConstraint(Sketcher.Constraint("Vertical", 2))
sketch9.addConstraint(Sketcher.Constraint("Horizontal", 3))
sketch9.addConstraint(Sketcher.Constraint("DistanceX", 1, 1, 1, 2, Q("3 in")))
sketch9.addConstraint(Sketcher.Constraint("DistanceY", 0, 2, 0, 1, Q("6.5 in")))
sketch9.addConstraint(Sketcher.Constraint("DistanceY", -1, 1, 0, 2, Q("0.1 in")))
sketch9.addConstraint(Sketcher.Constraint("DistanceX", -1, 1, 0, 2, 154.011579))
pocket2 = body.newObject("PartDesign::Pocket", "Pocket001")
pocket2.Profile = sketch9
pocket2.Length = Q("1 in")

# Sketch on XZ plane
sketch10 = body.newObject("Sketcher::SketchObject", "Sketch009")
sketch10.AttachmentSupport = (doc.getObject("XZ_Plane"), [""])
sketch10.MapMode = "FlatFace"
sketch10.AttachmentOffset = App.Placement(Vector(0, 0, -59.453764), App.Rotation())
sketch10.addGeometry(Part.LineSegment(Vector(-140, 62, 0), Vector(-140, 53, 0)), False)
sketch10.addGeometry(Part.LineSegment(Vector(-140, 53, 0), Vector(114, 53, 0)), False)
sketch10.addGeometry(Part.LineSegment(Vector(114, 53, 0), Vector(114, 62, 0)), False)
sketch10.addGeometry(Part.LineSegment(Vector(114, 62, 0), Vector(-140, 62, 0)), False)
sketch10.addGeometry(Part.LineSegment(Vector(-140, 109, 0), Vector(-140, 100, 0)), False)
sketch10.addGeometry(Part.LineSegment(Vector(-140, 100, 0), Vector(114, 100, 0)), False)
sketch10.addGeometry(Part.LineSegment(Vector(114, 100, 0), Vector(114, 109, 0)), False)
sketch10.addGeometry(Part.LineSegment(Vector(114, 109, 0), Vector(-140, 109, 0)), False)
sketch10.addGeometry(Part.LineSegment(Vector(-140, 156, 0), Vector(-140, 147, 0)), False)
sketch10.addGeometry(Part.LineSegment(Vector(-140, 147, 0), Vector(0, 147, 0)), False)
sketch10.addGeometry(Part.LineSegment(Vector(0, 147, 0), Vector(0, 156, 0)), False)
sketch10.addGeometry(Part.LineSegment(Vector(0, 156, 0), Vector(-140, 156, 0)), False)
sketch10.addConstraint(Sketcher.Constraint("Coincident", 0, 2, 1, 1))
sketch10.addConstraint(Sketcher.Constraint("Coincident", 1, 2, 2, 1))
sketch10.addConstraint(Sketcher.Constraint("Coincident", 2, 2, 3, 1))
sketch10.addConstraint(Sketcher.Constraint("Coincident", 3, 2, 0, 1))
sketch10.addConstraint(Sketcher.Constraint("Coincident", 4, 2, 5, 1))
sketch10.addConstraint(Sketcher.Constraint("Coincident", 5, 2, 6, 1))
sketch10.addConstraint(Sketcher.Constraint("Coincident", 6, 2, 7, 1))
sketch10.addConstraint(Sketcher.Constraint("Coincident", 7, 2, 4, 1))
sketch10.addConstraint(Sketcher.Constraint("Coincident", 8, 2, 9, 1))
sketch10.addConstraint(Sketcher.Constraint("Coincident", 9, 2, 10, 1))
sketch10.addConstraint(Sketcher.Constraint("Coincident", 10, 2, 11, 1))
sketch10.addConstraint(Sketcher.Constraint("Coincident", 11, 2, 8, 1))
sketch10.addConstraint(Sketcher.Constraint("Vertical", 0))
sketch10.addConstraint(Sketcher.Constraint("Horizontal", 1))
sketch10.addConstraint(Sketcher.Constraint("Vertical", 2))
sketch10.addConstraint(Sketcher.Constraint("Horizontal", 3))
sketch10.addConstraint(Sketcher.Constraint("Vertical", 4))
sketch10.addConstraint(Sketcher.Constraint("Horizontal", 5))
sketch10.addConstraint(Sketcher.Constraint("Vertical", 6))
sketch10.addConstraint(Sketcher.Constraint("Horizontal", 7))
sketch10.addConstraint(Sketcher.Constraint("Vertical", 8))
sketch10.addConstraint(Sketcher.Constraint("Horizontal", 9))
sketch10.addConstraint(Sketcher.Constraint("Vertical", 10))
sketch10.addConstraint(Sketcher.Constraint("Horizontal", 11))
sketch10.addConstraint(Sketcher.Constraint("PointOnObject", 9, 2, -2))
sketch10.addConstraint(Sketcher.Constraint("Vertical", 3, 2, 4, 2))
sketch10.addConstraint(Sketcher.Constraint("Vertical", 2, 2, 5, 2))
sketch10.addConstraint(Sketcher.Constraint("Vertical", 7, 2, 8, 2))
sketch10.addConstraint(Sketcher.Constraint("Equal", 2, 4))
sketch10.addConstraint(Sketcher.Constraint("Equal", 6, 8))
sketch10.addConstraint(Sketcher.Constraint("DistanceX", 1, 1, 1, 2, Q("10 in")))
sketch10.addConstraint(Sketcher.Constraint("DistanceY", 0, 2, 0, 1, Q("0.35 in")))
sketch10.addConstraint(Sketcher.Constraint("DistanceY", -1, 1, 0, 2, Q("2.1 in")))
sketch10.addConstraint(Sketcher.Constraint("DistanceY", -1, 1, 6, 2, Q("4.3 in")))
sketch10.addConstraint(Sketcher.Constraint("DistanceY", -1, 1, 8, 2, Q("5.8 in")))
sketch10.addConstraint(Sketcher.Constraint("DistanceX", 9, 1, 9, 2, 139.97028))
pad8 = body.newObject("PartDesign::Pad", "Pad007")
pad8.Profile = sketch10
pad8.Length = Q("1.5 in")

doc.recompute()
